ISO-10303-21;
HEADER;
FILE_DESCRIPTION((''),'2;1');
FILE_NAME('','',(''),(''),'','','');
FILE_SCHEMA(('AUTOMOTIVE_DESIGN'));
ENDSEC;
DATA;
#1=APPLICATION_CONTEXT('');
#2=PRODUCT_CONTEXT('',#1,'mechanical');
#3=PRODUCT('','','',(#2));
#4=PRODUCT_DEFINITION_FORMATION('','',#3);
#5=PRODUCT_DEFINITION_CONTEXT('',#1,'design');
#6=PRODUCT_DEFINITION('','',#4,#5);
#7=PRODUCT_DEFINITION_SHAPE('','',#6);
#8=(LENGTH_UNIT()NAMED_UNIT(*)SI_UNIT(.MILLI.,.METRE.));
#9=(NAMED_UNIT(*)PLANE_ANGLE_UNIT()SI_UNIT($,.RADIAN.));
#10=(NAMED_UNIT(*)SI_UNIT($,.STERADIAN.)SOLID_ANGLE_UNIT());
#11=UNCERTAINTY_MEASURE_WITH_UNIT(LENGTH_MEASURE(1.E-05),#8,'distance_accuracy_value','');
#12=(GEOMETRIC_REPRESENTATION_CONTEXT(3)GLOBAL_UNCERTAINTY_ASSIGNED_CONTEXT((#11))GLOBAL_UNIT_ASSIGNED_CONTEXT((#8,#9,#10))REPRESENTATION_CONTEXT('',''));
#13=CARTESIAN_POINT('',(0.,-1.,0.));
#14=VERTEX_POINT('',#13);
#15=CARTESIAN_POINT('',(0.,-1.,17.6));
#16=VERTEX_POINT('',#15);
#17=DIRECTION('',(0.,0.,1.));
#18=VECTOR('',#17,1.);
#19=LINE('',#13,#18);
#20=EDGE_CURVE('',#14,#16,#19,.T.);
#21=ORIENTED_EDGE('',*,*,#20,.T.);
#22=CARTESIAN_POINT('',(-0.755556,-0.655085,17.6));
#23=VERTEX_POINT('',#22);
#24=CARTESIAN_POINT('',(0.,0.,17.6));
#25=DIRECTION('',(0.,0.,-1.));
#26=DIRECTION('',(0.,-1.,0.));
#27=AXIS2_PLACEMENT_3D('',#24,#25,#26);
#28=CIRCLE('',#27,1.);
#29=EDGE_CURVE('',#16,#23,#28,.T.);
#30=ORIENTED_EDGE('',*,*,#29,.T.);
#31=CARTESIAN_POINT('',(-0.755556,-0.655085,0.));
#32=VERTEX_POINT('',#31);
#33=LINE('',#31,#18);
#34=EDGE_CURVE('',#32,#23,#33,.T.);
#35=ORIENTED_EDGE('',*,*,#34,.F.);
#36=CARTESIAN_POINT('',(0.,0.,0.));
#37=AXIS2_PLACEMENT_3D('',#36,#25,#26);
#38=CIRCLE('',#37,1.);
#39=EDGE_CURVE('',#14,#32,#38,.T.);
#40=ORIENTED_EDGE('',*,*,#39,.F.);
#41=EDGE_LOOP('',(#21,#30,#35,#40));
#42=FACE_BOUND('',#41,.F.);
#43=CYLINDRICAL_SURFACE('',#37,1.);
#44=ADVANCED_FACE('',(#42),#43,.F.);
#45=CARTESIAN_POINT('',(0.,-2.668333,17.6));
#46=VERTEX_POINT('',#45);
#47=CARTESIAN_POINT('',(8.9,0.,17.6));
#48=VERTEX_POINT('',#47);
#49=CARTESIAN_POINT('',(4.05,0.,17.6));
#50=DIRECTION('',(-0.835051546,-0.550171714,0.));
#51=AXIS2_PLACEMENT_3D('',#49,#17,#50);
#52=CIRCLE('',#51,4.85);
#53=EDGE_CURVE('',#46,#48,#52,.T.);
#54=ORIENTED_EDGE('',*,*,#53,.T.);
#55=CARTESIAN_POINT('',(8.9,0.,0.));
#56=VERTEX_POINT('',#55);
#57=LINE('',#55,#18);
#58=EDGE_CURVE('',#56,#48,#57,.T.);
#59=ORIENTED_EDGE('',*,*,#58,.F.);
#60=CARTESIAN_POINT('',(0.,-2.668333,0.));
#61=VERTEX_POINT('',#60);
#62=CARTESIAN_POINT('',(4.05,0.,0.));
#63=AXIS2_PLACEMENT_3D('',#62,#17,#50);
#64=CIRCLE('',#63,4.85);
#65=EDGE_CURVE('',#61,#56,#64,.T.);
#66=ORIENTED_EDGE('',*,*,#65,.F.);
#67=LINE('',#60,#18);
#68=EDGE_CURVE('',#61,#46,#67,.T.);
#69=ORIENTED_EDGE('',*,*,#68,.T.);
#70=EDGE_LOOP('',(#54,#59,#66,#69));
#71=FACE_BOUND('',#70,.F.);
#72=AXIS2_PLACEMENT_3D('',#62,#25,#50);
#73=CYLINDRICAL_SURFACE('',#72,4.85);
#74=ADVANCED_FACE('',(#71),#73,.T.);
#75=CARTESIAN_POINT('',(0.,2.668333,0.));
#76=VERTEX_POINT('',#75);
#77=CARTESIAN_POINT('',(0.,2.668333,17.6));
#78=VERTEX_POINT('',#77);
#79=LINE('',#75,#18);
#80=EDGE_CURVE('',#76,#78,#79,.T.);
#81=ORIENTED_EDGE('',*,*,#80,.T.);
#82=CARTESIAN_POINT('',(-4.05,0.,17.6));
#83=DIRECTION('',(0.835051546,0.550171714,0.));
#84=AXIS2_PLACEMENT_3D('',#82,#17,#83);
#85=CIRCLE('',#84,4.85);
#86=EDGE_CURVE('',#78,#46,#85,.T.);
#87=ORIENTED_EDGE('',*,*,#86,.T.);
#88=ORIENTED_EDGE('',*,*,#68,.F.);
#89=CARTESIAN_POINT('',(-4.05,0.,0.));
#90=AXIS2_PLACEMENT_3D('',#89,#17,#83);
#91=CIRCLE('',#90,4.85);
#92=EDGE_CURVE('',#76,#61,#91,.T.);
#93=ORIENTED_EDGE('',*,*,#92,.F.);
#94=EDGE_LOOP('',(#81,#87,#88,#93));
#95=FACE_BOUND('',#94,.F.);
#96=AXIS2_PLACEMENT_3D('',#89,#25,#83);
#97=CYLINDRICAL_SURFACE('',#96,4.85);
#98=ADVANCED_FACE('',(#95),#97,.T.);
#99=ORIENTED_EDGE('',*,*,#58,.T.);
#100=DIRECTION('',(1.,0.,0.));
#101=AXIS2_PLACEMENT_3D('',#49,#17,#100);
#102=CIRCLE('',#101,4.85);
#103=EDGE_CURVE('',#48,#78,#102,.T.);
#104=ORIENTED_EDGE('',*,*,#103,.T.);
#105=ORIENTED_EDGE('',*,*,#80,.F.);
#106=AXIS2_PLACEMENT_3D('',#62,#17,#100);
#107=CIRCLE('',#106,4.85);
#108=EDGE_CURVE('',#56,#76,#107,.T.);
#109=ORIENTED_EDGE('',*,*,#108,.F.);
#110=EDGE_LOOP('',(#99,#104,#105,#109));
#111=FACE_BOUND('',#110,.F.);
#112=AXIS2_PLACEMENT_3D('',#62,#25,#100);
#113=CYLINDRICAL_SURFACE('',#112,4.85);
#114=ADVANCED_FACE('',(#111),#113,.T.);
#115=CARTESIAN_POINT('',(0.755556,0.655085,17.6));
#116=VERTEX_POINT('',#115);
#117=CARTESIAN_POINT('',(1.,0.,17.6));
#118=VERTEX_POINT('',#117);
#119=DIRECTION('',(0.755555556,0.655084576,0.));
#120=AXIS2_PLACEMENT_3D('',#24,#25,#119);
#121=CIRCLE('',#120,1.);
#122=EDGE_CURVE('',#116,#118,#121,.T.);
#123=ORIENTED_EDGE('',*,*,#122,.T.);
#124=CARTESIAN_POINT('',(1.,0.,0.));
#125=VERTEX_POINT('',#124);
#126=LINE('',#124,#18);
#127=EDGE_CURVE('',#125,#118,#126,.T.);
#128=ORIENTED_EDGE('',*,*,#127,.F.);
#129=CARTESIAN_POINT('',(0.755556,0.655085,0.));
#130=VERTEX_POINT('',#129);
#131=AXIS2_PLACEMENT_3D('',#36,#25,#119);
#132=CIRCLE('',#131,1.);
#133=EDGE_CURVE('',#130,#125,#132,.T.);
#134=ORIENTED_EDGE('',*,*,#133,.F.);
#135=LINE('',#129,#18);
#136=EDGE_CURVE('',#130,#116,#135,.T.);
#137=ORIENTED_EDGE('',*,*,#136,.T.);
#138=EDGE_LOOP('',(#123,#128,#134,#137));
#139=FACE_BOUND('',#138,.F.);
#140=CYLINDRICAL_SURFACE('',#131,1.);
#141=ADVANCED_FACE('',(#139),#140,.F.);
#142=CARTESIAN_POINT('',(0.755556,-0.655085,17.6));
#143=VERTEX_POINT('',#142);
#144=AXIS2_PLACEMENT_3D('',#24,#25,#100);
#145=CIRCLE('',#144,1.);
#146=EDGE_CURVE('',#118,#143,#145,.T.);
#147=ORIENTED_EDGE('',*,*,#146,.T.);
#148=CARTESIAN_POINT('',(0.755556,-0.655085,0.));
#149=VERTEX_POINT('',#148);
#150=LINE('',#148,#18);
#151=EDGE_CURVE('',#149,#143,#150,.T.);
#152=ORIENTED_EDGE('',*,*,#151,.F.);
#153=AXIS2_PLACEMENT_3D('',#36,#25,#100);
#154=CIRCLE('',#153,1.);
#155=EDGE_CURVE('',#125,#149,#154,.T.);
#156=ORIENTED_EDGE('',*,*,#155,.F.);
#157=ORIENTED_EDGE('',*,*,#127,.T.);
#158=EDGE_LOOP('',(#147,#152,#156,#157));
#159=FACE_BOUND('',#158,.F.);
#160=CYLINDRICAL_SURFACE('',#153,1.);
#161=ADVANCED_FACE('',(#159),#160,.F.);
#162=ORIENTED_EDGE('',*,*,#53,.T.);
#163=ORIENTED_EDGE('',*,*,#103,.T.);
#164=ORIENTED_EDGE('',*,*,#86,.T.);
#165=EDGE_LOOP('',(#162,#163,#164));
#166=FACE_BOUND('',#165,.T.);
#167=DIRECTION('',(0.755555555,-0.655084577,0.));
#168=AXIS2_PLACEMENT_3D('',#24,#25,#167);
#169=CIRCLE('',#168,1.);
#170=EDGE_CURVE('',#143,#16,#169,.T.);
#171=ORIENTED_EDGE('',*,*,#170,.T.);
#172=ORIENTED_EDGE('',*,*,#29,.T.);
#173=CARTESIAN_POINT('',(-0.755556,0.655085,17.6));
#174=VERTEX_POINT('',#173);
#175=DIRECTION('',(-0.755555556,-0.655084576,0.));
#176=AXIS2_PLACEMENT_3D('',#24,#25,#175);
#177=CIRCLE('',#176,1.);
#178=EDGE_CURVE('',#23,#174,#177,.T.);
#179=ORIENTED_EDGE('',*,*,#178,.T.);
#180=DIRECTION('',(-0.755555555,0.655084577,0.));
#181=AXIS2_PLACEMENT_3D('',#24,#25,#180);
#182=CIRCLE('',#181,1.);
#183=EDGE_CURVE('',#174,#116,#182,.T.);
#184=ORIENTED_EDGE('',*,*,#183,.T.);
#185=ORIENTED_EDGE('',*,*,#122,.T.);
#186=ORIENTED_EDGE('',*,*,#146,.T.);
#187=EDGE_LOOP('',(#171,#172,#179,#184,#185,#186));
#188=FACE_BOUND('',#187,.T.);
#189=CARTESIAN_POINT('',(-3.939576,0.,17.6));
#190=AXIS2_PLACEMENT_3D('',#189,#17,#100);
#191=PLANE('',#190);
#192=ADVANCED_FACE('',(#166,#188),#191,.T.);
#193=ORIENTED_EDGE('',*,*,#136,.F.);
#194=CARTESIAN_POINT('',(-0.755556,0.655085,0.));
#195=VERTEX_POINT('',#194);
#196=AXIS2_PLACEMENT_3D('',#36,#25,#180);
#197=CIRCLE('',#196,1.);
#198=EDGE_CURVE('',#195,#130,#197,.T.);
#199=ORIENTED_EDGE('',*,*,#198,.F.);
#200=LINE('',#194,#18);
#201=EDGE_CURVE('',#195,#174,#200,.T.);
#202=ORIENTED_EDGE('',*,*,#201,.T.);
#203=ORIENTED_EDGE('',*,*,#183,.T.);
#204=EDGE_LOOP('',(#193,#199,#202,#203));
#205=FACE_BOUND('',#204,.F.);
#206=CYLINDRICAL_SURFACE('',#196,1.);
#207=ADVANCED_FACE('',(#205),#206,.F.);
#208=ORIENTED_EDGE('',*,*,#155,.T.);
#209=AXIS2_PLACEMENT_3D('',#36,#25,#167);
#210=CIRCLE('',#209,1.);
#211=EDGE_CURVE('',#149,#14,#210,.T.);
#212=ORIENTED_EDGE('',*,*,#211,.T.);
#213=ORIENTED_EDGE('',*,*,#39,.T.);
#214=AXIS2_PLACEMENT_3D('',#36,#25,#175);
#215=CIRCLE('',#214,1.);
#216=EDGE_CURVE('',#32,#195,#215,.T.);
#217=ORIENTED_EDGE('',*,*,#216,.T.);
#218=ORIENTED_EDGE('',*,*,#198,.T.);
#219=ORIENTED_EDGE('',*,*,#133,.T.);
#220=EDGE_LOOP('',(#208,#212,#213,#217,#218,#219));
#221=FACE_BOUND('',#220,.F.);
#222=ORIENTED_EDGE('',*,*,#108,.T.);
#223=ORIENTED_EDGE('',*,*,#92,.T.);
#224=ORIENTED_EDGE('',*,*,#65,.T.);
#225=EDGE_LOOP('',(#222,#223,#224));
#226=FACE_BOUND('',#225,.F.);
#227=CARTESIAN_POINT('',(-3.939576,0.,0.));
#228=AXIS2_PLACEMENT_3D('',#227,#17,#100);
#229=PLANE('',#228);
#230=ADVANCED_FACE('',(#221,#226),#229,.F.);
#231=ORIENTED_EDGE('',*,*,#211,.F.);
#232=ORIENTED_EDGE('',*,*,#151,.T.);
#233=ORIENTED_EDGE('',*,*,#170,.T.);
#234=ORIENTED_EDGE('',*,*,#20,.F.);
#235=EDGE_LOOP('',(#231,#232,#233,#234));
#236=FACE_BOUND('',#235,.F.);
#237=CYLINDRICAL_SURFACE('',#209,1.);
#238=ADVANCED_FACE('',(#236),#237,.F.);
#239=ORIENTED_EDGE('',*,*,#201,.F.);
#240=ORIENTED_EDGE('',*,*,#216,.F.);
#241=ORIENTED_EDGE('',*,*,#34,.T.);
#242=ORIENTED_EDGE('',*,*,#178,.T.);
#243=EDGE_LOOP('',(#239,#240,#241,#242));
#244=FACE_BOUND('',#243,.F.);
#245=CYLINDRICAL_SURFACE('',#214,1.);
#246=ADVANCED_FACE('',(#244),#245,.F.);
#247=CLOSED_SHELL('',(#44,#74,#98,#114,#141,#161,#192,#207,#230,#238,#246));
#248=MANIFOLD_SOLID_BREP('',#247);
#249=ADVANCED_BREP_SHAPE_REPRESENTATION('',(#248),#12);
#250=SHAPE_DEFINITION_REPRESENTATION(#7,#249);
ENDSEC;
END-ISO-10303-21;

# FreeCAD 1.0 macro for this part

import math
import FreeCAD as App
import Part
import Sketcher

V = App.Vector
Q = App.Units.Quantity

doc = App.newDocument("Part")
body = doc.addObject("PartDesign::Body", "Body")

sketch1 = doc.addObject("Sketcher::SketchObject", "Sketch")
body.addObject(sketch1)
sketch1.AttachmentSupport = (doc.XY_Plane, [""])
sketch1.MapMode = "FlatFace"
sketch1.addGeometry([
    Part.ArcOfCircle(Part.Circle(V(4, 0, 0), V(0, 0, 1), 4.8), math.radians(0), math.radians(147)),
    Part.ArcOfCircle(Part.Circle(V(-4, 0, 0), V(0, 0, 1), 4.8), math.radians(33), math.radians(327)),
    Part.ArcOfCircle(Part.Circle(V(4, 0, 0), V(0, 0, 1), 4.8), math.radians(-147), math.radians(0)),
    Part.ArcOfCircle(Part.Circle(V(0, 0, 0), V(0, 0, 1), 1), math.radians(139), math.radians(221)),
    Part.ArcOfCircle(Part.Circle(V(0, 0, 0), V(0, 0, 1), 1), math.radians(41), math.radians(139)),
    Part.ArcOfCircle(Part.Circle(V(0, 0, 0), V(0, 0, 1), 1), math.radians(0), math.radians(41)),
    Part.ArcOfCircle(Part.Circle(V(0, 0, 0), V(0, 0, 1), 1), math.radians(-41), math.radians(0)),
    Part.ArcOfCircle(Part.Circle(V(0, 0, 0), V(0, 0, 1), 1), math.radians(-90), math.radians(-41)),
    Part.ArcOfCircle(Part.Circle(V(0, 0, 0), V(0, 0, 1), 1), math.radians(-139), math.radians(-90)),
], False)
sketch1.addConstraint([
    Sketcher.Constraint("Coincident", 0, 2, 1, 1),
    Sketcher.Constraint("Coincident", 1, 2, 2, 1),
    Sketcher.Constraint("Tangent", 2, 2, 0, 1),
    Sketcher.Constraint("Tangent", 3, 1, 4, 2),
    Sketcher.Constraint("Tangent", 4, 1, 5, 2),
    Sketcher.Constraint("Tangent", 5, 1, 6, 2),
    Sketcher.Constraint("Tangent", 6, 1, 7, 2),
    Sketcher.Constraint("Tangent", 7, 1, 8, 2),
    Sketcher.Constraint("Tangent", 8, 1, 3, 2),
    Sketcher.Constraint("Coincident", 3, 3, -1, 1),
    Sketcher.Constraint("Coincident", 5, 3, -1, 1),
    Sketcher.Constraint("Equal", 0, 1),
    Sketcher.Constraint("Equal", 1, 2),
    Sketcher.Constraint("Equal", 5, 6),
    Sketcher.Constraint("Symmetric", 0, 3, 1, 3, -1, 1),
    Sketcher.Constraint("PointOnObject", 0, 3, -1),
    Sketcher.Constraint("PointOnObject", 2, 2, -1),
    Sketcher.Constraint("PointOnObject", 5, 1, -1),
    Sketcher.Constraint("PointOnObject", 7, 1, -2),
    Sketcher.Constraint("Horizontal", 3, 1, 4, 1),
    Sketcher.Constraint("Horizontal", 6, 1, 8, 1),
    Sketcher.Constraint("Vertical", 4, 1, 6, 1),
    Sketcher.Constraint("Radius", 3, Q("1 mm")),
    Sketcher.Constraint("Radius", 0, Q("4.85 mm")),
    Sketcher.Constraint("DistanceX", -1, 1, 2, 2, Q("8.9 mm")),
    Sketcher.Constraint("DistanceX", 3, 1, -1, 1, Q("0.755556 mm")),
])
pad1 = doc.addObject("PartDesign::Pad", "Pad")
body.addObject(pad1)
pad1.Profile = sketch1
pad1.Length = 17.6

doc.recompute()
